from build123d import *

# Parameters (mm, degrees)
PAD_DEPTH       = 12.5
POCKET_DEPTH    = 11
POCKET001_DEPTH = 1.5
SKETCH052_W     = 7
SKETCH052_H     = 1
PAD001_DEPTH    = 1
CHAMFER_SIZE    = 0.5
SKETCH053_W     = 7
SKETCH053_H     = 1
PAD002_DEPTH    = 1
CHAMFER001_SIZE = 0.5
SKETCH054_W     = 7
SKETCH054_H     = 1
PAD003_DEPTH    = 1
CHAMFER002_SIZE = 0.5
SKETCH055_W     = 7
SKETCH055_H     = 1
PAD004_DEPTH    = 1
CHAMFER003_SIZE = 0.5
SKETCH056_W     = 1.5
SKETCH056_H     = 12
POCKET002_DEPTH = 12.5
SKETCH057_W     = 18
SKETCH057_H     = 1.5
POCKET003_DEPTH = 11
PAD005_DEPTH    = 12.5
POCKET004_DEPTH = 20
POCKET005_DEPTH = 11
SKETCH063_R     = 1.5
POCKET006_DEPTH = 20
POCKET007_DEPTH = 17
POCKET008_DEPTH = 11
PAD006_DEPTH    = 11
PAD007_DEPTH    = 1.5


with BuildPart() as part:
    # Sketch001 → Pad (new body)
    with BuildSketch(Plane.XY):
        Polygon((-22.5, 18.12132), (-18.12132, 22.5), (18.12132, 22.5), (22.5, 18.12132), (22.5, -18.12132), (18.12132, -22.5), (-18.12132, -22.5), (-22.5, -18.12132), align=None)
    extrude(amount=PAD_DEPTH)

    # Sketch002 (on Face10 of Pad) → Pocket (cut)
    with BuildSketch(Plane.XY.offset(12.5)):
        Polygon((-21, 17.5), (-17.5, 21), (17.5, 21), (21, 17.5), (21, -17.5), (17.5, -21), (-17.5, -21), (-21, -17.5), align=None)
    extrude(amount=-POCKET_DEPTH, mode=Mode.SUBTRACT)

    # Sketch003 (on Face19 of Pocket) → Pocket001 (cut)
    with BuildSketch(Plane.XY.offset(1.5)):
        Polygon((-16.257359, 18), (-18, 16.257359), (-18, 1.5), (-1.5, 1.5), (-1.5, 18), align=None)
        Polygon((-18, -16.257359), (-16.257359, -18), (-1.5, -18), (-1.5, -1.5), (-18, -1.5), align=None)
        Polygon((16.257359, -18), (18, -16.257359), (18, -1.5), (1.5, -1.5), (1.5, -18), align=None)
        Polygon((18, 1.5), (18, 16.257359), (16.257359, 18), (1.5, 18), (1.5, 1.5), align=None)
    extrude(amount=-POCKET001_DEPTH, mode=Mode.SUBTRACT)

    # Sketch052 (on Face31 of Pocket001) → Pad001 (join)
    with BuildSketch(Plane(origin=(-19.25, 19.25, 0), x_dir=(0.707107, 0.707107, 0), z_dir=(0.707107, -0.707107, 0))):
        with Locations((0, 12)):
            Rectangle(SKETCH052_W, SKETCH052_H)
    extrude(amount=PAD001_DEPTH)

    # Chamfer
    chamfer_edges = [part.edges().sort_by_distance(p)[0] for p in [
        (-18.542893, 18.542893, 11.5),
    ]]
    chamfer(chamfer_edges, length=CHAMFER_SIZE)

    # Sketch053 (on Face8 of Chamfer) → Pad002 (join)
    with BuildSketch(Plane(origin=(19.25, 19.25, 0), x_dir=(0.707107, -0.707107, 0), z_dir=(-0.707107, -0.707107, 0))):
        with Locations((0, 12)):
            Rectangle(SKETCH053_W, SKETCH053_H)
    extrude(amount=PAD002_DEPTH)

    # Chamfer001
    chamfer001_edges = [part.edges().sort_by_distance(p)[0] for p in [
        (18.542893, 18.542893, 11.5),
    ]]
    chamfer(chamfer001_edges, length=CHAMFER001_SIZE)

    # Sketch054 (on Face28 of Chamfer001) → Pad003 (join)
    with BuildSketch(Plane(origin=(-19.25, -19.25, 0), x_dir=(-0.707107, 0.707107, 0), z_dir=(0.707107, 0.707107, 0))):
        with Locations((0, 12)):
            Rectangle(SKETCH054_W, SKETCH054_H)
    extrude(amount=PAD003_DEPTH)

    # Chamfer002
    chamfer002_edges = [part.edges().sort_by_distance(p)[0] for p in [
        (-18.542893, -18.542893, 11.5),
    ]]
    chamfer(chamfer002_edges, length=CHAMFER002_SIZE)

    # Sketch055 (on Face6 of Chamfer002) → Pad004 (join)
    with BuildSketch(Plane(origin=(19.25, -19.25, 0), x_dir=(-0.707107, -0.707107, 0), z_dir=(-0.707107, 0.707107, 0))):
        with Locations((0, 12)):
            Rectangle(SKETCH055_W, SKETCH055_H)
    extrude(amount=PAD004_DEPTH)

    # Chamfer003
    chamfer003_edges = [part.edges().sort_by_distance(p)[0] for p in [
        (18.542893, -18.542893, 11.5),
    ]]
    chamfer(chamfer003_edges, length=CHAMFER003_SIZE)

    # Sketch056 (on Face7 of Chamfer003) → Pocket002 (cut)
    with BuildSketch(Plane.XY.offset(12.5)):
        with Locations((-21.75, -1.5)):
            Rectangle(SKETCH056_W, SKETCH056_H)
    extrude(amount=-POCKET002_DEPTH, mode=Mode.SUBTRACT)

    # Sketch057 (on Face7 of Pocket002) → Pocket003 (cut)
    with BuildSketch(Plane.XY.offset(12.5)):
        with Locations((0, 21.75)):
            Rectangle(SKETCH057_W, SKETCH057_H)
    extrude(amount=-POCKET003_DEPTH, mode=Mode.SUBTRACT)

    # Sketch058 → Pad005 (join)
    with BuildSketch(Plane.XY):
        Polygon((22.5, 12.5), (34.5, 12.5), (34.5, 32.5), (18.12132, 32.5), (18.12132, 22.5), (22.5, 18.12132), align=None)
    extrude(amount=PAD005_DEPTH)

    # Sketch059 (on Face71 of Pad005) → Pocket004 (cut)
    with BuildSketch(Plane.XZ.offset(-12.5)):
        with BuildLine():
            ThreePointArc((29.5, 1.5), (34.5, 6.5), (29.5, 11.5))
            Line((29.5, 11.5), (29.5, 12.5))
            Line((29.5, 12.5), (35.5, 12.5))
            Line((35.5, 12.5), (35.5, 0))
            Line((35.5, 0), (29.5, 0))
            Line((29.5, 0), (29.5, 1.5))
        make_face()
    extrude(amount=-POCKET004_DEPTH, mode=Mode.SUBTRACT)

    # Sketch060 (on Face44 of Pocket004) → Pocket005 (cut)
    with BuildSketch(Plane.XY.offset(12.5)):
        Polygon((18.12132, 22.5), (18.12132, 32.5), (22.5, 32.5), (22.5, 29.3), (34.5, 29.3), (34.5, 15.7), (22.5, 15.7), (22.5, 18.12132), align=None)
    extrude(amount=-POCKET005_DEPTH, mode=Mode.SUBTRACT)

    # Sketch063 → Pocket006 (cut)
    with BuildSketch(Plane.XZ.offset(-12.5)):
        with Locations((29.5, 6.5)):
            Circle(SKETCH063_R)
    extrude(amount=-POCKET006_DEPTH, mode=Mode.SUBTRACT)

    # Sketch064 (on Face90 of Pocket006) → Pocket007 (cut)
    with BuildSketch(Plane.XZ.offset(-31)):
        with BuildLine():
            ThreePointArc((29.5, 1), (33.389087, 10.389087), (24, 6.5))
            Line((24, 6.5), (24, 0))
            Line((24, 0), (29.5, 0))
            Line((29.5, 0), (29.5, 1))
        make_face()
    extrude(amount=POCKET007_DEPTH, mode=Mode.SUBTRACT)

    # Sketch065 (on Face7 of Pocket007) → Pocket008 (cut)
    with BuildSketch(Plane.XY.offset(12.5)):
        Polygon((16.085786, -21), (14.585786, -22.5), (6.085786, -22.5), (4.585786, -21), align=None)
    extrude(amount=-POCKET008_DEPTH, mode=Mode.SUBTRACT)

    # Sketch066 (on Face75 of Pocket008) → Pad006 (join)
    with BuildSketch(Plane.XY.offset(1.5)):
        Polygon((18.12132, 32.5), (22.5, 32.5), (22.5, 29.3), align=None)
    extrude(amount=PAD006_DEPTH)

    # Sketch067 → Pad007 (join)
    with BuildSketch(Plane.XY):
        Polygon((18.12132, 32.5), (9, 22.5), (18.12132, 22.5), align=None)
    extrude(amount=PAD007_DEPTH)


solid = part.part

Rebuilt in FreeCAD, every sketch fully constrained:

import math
import FreeCAD as App
import Part
import Sketcher
from FreeCAD import Vector
Q = App.Units.Quantity


def edges_at(feature, points):
    """Names of the edges that pass closest to the given points."""
    edges = feature.Shape.Edges
    near = lambda p: min(range(len(edges)), key=lambda i: edges[i].distToShape(Part.Vertex(*p))[0])
    return sorted({f"Edge{near(p) + 1}" for p in points})


def add_polygon(sketch, points):
    """Adds a closed chain of lines whose ends are joined by coincident constraints."""
    first, n = sketch.GeometryCount, len(points)
    for a, b in zip(points, points[1:] + points[:1]):
        sketch.addGeometry(Part.LineSegment(App.Vector(*a, 0), App.Vector(*b, 0)), False)
    for i in range(n):
        sketch.addConstraint(Sketcher.Constraint("Coincident", first + i, 2, first + (i + 1) % n, 1))

doc = App.newDocument("Part")
body = doc.addObject("PartDesign::Body", "Body")

# Sketch on XY plane
sketch1 = body.newObject("Sketcher::SketchObject", "Sketch")
sketch1.AttachmentSupport = (doc.getObject("XY_Plane"), [""])
sketch1.MapMode = "FlatFace"
add_polygon(sketch1, [(-18.12132, 22.5), (-22.5, 18.12132), (-22.5, -18.12132), (-18.12132, -22.5), (18.12132, -22.5), (22.5, -18.12132), (22.5, 18.12132), (18.12132, 22.5)])  # lines 0-7
sketch1.addConstraint(Sketcher.Constraint("Vertical", 1))
sketch1.addConstraint(Sketcher.Constraint("Horizontal", 3))
sketch1.addConstraint(Sketcher.Constraint("Vertical", 5))
sketch1.addConstraint(Sketcher.Constraint("Horizontal", 7))
sketch1.addConstraint(Sketcher.Constraint("Symmetric", 0, 2, 4, 2, -1, 1))
sketch1.addConstraint(Sketcher.Constraint("Symmetric", 2, 2, 6, 2, -1, 1))
sketch1.addConstraint(Sketcher.Constraint("Perpendicular", 0, 2))
sketch1.addConstraint(Sketcher.Constraint("Perpendicular", 2, 4))
sketch1.addConstraint(Sketcher.Constraint("Perpendicular", 4, 6))
sketch1.addConstraint(Sketcher.Constraint("Horizontal", 1, 2, 4, 2))
sketch1.addConstraint(Sketcher.Constraint("Vertical", 3, 2, 6, 2))
sketch1.addConstraint(Sketcher.Constraint("Equal", 7, 1))
sketch1.addConstraint(Sketcher.Constraint("DistanceX", 1, 2, 4, 2, 45.0))
sketch1.addConstraint(Sketcher.Constraint("DistanceX", 3, 1, 3, 2, 36.24264))
pad1 = body.newObject("PartDesign::Pad", "Pad")
pad1.Profile = sketch1
pad1.Length = 12.5

# Sketch on XY plane
sketch2 = body.newObject("Sketcher::SketchObject", "Sketch001")
sketch2.AttachmentSupport = (doc.getObject("XY_Plane"), [""])
sketch2.MapMode = "FlatFace"
sketch2.AttachmentOffset = App.Placement(Vector(0, 0, 12.5), App.Rotation())
add_polygon(sketch2, [(-17.5, 21), (-21, 17.5), (-21, -17.5), (-17.5, -21), (17.5, -21), (21, -17.5), (21, 17.5), (17.5, 21)])  # lines 0-7
sketch2.addConstraint(Sketcher.Constraint("Vertical", 1))
sketch2.addConstraint(Sketcher.Constraint("Horizontal", 3))
sketch2.addConstraint(Sketcher.Constraint("Vertical", 5))
sketch2.addConstraint(Sketcher.Constraint("Horizontal", 7))
sketch2.addConstraint(Sketcher.Constraint("Symmetric", 0, 2, 4, 2, -1, 1))
sketch2.addConstraint(Sketcher.Constraint("Symmetric", 2, 2, 6, 2, -1, 1))
sketch2.addConstraint(Sketcher.Constraint("Perpendicular", 0, 2))
sketch2.addConstraint(Sketcher.Constraint("Perpendicular", 2, 4))
sketch2.addConstraint(Sketcher.Constraint("Perpendicular", 4, 6))
sketch2.addConstraint(Sketcher.Constraint("Horizontal", 1, 2, 4, 2))
sketch2.addConstraint(Sketcher.Constraint("Vertical", 3, 2, 6, 2))
sketch2.addConstraint(Sketcher.Constraint("Equal", 7, 1))
sketch2.addConstraint(Sketcher.Constraint("DistanceX", 3, 1, 3, 2, 35.0))
sketch2.addConstraint(Sketcher.Constraint("DistanceX", 0, 2, -1, 1, 21.0))
pocket1 = body.newObject("PartDesign::Pocket", "Pocket")
pocket1.Profile = sketch2
pocket1.Length = 11

# Sketch on XY plane
sketch3 = body.newObject("Sketcher::SketchObject", "Sketch002")
sketch3.AttachmentSupport = (doc.getObject("XY_Plane"), [""])
sketch3.MapMode = "FlatFace"
sketch3.AttachmentOffset = App.Placement(Vector(0, 0, 1.5), App.Rotation())
add_polygon(sketch3, [(-16.257359, 18), (-18, 16.257359), (-18, 1.5), (-1.5, 1.5), (-1.5, 18)])  # lines 0-4
add_polygon(sketch3, [(-18, -16.257359), (-16.257359, -18), (-1.5, -18), (-1.5, -1.5), (-18, -1.5)])  # lines 5-9
add_polygon(sketch3, [(16.257359, -18), (18, -16.257359), (18, -1.5), (1.5, -1.5), (1.5, -18)])  # lines 10-14
add_polygon(sketch3, [(18, 1.5), (18, 16.257359), (16.257359, 18), (1.5, 18), (1.5, 1.5)])  # lines 15-19
sketch3.addConstraint(Sketcher.Constraint("Vertical", 1))
sketch3.addConstraint(Sketcher.Constraint("Horizontal", 2))
sketch3.addConstraint(Sketcher.Constraint("Vertical", 3))
sketch3.addConstraint(Sketcher.Constraint("Horizontal", 4))
sketch3.addConstraint(Sketcher.Constraint("Horizontal", 6))
sketch3.addConstraint(Sketcher.Constraint("Vertical", 7))
sketch3.addConstraint(Sketcher.Constraint("Horizontal", 8))
sketch3.addConstraint(Sketcher.Constraint("Vertical", 9))
sketch3.addConstraint(Sketcher.Constraint("Vertical", 11))
sketch3.addConstraint(Sketcher.Constraint("Horizontal", 12))
sketch3.addConstraint(Sketcher.Constraint("Vertical", 13))
sketch3.addConstraint(Sketcher.Constraint("Horizontal", 14))
sketch3.addConstraint(Sketcher.Constraint("Vertical", 15))
sketch3.addConstraint(Sketcher.Constraint("Horizontal", 17))
sketch3.addConstraint(Sketcher.Constraint("Vertical", 18))
sketch3.addConstraint(Sketcher.Constraint("Horizontal", 19))
sketch3.addConstraint(Sketcher.Constraint("Symmetric", 0, 2, 10, 2, -1, 1))
sketch3.addConstraint(Sketcher.Constraint("Symmetric", 2, 2, 12, 2, -1, 1))
sketch3.addConstraint(Sketcher.Constraint("Symmetric", 4, 2, 14, 2, -1, 1))
sketch3.addConstraint(Sketcher.Constraint("Symmetric", 9, 2, 15, 2, -1, 1))
sketch3.addConstraint(Sketcher.Constraint("Symmetric", 5, 2, 16, 2, -1, 1))
sketch3.addConstraint(Sketcher.Constraint("Symmetric", 7, 2, 18, 2, -1, 1))
sketch3.addConstraint(Sketcher.Constraint("Symmetric", 9, 2, 10, 2, -2))
sketch3.addConstraint(Sketcher.Constraint("Symmetric", 7, 2, 12, 2, -2))
sketch3.addConstraint(Sketcher.Constraint("Symmetric", 5, 2, 14, 2, -2))
sketch3.addConstraint(Sketcher.Constraint("Perpendicular", 0, 5))
sketch3.addConstraint(Sketcher.Constraint("Equal", 17, 1))
sketch3.addConstraint(Sketcher.Constraint("DistanceX", 2, 1, 2, 2, 16.5))
sketch3.addConstraint(Sketcher.Constraint("DistanceX", 0, 2, -1, 1, 18.0))
sketch3.addConstraint(Sketcher.Constraint("DistanceY", -1, 1, 3, 2, 18.0))
sketch3.addConstraint(Sketcher.Constraint("DistanceX", 4, 2, 4, 1, 14.757359))
pocket2 = body.newObject("PartDesign::Pocket", "Pocket001")
pocket2.Profile = sketch3
pocket2.Length = 1.5

# Sketch on an angled plane
sketch4 = body.newObject("Sketcher::SketchObject", "Sketch003")
sketch4.Placement = App.Placement(Vector(-19.25, 19.25, 0), App.Rotation(Vector(0.707106781, 0.707106781, 0), Vector(0, 0, 0.999999999), Vector(0.707106781, -0.707106781, 0), "ZXY"))
add_polygon(sketch4, [(-3.5, 12.5), (-3.5, 11.5), (3.5, 11.5), (3.5, 12.5)])  # lines 0-3
sketch4.addConstraint(Sketcher.Constraint("Vertical", 0))
sketch4.addConstraint(Sketcher.Constraint("Horizontal", 1))
sketch4.addConstraint(Sketcher.Constraint("Vertical", 2))
sketch4.addConstraint(Sketcher.Constraint("Horizontal", 3))
sketch4.addConstraint(Sketcher.Constraint("DistanceX", 1, 1, 1, 2, 7.0))
sketch4.addConstraint(Sketcher.Constraint("DistanceY", 0, 2, 0, 1, 1.0))
sketch4.addConstraint(Sketcher.Constraint("DistanceX", 0, 2, -1, 1, 3.5))
sketch4.addConstraint(Sketcher.Constraint("DistanceY", -1, 1, 0, 2, 11.5))
pad2 = body.newObject("PartDesign::Pad", "Pad001")
pad2.Profile = sketch4
pad2.Length = 1
doc.recompute()

chamfer = body.newObject("PartDesign::Chamfer", "Chamfer")
chamfer.Base = (pad2, edges_at(pad2, [(-18.543, 18.543, 11.5)]))
chamfer.Size = 0.5

# Sketch on an angled plane
sketch5 = body.newObject("Sketcher::SketchObject", "Sketch004")
sketch5.Placement = App.Placement(Vector(19.25, 19.25, 0), App.Rotation(Vector(0.707106781, -0.707106781, 0), Vector(0, 0, 0.999999999), Vector(-0.707106781, -0.707106781, 0), "ZXY"))
add_polygon(sketch5, [(-3.5, 12.5), (-3.5, 11.5), (3.5, 11.5), (3.5, 12.5)])  # lines 0-3
sketch5.addConstraint(Sketcher.Constraint("Vertical", 0))
sketch5.addConstraint(Sketcher.Constraint("Horizontal", 1))
sketch5.addConstraint(Sketcher.Constraint("Vertical", 2))
sketch5.addConstraint(Sketcher.Constraint("Horizontal", 3))
sketch5.addConstraint(Sketcher.Constraint("DistanceX", 1, 1, 1, 2, 7.0))
sketch5.addConstraint(Sketcher.Constraint("DistanceY", 0, 2, 0, 1, 1.0))
sketch5.addConstraint(Sketcher.Constraint("DistanceX", 0, 2, -1, 1, 3.5))
sketch5.addConstraint(Sketcher.Constraint("DistanceY", -1, 1, 0, 2, 11.5))
pad3 = body.newObject("PartDesign::Pad", "Pad002")
pad3.Profile = sketch5
pad3.Length = 1
doc.recompute()

chamfer2 = body.newObject("PartDesign::Chamfer", "Chamfer001")
chamfer2.Base = (pad3, edges_at(pad3, [(18.543, 18.543, 11.5)]))
chamfer2.Size = 0.5

# Sketch on an angled plane
sketch6 = body.newObject("Sketcher::SketchObject", "Sketch005")
sketch6.Placement = App.Placement(Vector(-19.25, -19.25, 0), App.Rotation(Vector(-0.707106781, 0.707106781, 0), Vector(0, 0, 0.999999999), Vector(0.707106781, 0.707106781, 0), "ZXY"))
add_polygon(sketch6, [(-3.5, 12.5), (-3.5, 11.5), (3.5, 11.5), (3.5, 12.5)])  # lines 0-3
sketch6.addConstraint(Sketcher.Constraint("Vertical", 0))
sketch6.addConstraint(Sketcher.Constraint("Horizontal", 1))
sketch6.addConstraint(Sketcher.Constraint("Vertical", 2))
sketch6.addConstraint(Sketcher.Constraint("Horizontal", 3))
sketch6.addConstraint(Sketcher.Constraint("DistanceX", 1, 1, 1, 2, 7.0))
sketch6.addConstraint(Sketcher.Constraint("DistanceY", 0, 2, 0, 1, 1.0))
sketch6.addConstraint(Sketcher.Constraint("DistanceX", 0, 2, -1, 1, 3.5))
sketch6.addConstraint(Sketcher.Constraint("DistanceY", -1, 1, 0, 2, 11.5))
pad4 = body.newObject("PartDesign::Pad", "Pad003")
pad4.Profile = sketch6
pad4.Length = 1
doc.recompute()

chamfer3 = body.newObject("PartDesign::Chamfer", "Chamfer002")
chamfer3.Base = (pad4, edges_at(pad4, [(-18.543, -18.543, 11.5)]))
chamfer3.Size = 0.5

# Sketch on an angled plane
sketch7 = body.newObject("Sketcher::SketchObject", "Sketch006")
sketch7.Placement = App.Placement(Vector(19.25, -19.25, 0), App.Rotation(Vector(-0.707106781, -0.707106781, 0), Vector(0, 0, 0.999999999), Vector(-0.707106781, 0.707106781, 0), "ZXY"))
add_polygon(sketch7, [(-3.5, 12.5), (-3.5, 11.5), (3.5, 11.5), (3.5, 12.5)])  # lines 0-3
sketch7.addConstraint(Sketcher.Constraint("Vertical", 0))
sketch7.addConstraint(Sketcher.Constraint("Horizontal", 1))
sketch7.addConstraint(Sketcher.Constraint("Vertical", 2))
sketch7.addConstraint(Sketcher.Constraint("Horizontal", 3))
sketch7.addConstraint(Sketcher.Constraint("DistanceX", 1, 1, 1, 2, 7.0))
sketch7.addConstraint(Sketcher.Constraint("DistanceY", 0, 2, 0, 1, 1.0))
sketch7.addConstraint(Sketcher.Constraint("DistanceX", 0, 2, -1, 1, 3.5))
sketch7.addConstraint(Sketcher.Constraint("DistanceY", -1, 1, 0, 2, 11.5))
pad5 = body.newObject("PartDesign::Pad", "Pad004")
pad5.Profile = sketch7
pad5.Length = 1
doc.recompute()

chamfer4 = body.newObject("PartDesign::Chamfer", "Chamfer003")
chamfer4.Base = (pad5, edges_at(pad5, [(18.543, -18.543, 11.5)]))
chamfer4.Size = 0.5

# Sketch on XY plane
sketch8 = body.newObject("Sketcher::SketchObject", "Sketch007")
sketch8.AttachmentSupport = (doc.getObject("XY_Plane"), [""])
sketch8.MapMode = "FlatFace"
sketch8.AttachmentOffset = App.Placement(Vector(0, 0, 12.5), App.Rotation())
add_polygon(sketch8, [(-22.5, 4.5), (-22.5, -7.5), (-21, -7.5), (-21, 4.5)])  # lines 0-3
sketch8.addConstraint(Sketcher.Constraint("Vertical", 0))
sketch8.addConstraint(Sketcher.Constraint("Horizontal", 1))
sketch8.addConstraint(Sketcher.Constraint("Vertical", 2))
sketch8.addConstraint(Sketcher.Constraint("Horizontal", 3))
sketch8.addConstraint(Sketcher.Constraint("DistanceY", 0, 2, 0, 1, 12.0))
sketch8.addConstraint(Sketcher.Constraint("DistanceX", 1, 1, 1, 2, 1.5))
sketch8.addConstraint(Sketcher.Constraint("DistanceX", 1, 2, -1, 1, 21.0))
sketch8.addConstraint(Sketcher.Constraint("DistanceY", 0, 2, -1, 1, 7.5))
pocket3 = body.newObject("PartDesign::Pocket", "Pocket002")
pocket3.Profile = sketch8
pocket3.Length = 12.5

# Sketch on XY plane
sketch9 = body.newObject("Sketcher::SketchObject", "Sketch008")
sketch9.AttachmentSupport = (doc.getObject("XY_Plane"), [""])
sketch9.MapMode = "FlatFace"
sketch9.AttachmentOffset = App.Placement(Vector(0, 0, 12.5), App.Rotation())
add_polygon(sketch9, [(-9, 22.5), (-9, 21), (9, 21), (9, 22.5)])  # lines 0-3
sketch9.addConstraint(Sketcher.Constraint("Vertical", 0))
sketch9.addConstraint(Sketcher.Constraint("Horizontal", 1))
sketch9.addConstraint(Sketcher.Constraint("Vertical", 2))
sketch9.addConstraint(Sketcher.Constraint("Horizontal", 3))
sketch9.addConstraint(Sketcher.Constraint("DistanceX", 1, 1, 1, 2, 18.0))
sketch9.addConstraint(Sketcher.Constraint("DistanceY", 0, 2, 0, 1, 1.5))
sketch9.addConstraint(Sketcher.Constraint("DistanceX", 0, 2, -1, 1, 9.0))
sketch9.addConstraint(Sketcher.Constraint("DistanceY", -1, 1, 0, 2, 21.0))
pocket4 = body.newObject("PartDesign::Pocket", "Pocket003")
pocket4.Profile = sketch9
pocket4.Length = 11

# Sketch on XY plane
sketch10 = body.newObject("Sketcher::SketchObject", "Sketch009")
sketch10.AttachmentSupport = (doc.getObject("XY_Plane"), [""])
sketch10.MapMode = "FlatFace"
add_polygon(sketch10, [(22.5, 12.5), (34.5, 12.5), (34.5, 32.5), (18.12132, 32.5), (18.12132, 22.5), (22.5, 18.12132)])  # lines 0-5
sketch10.addConstraint(Sketcher.Constraint("Horizontal", 0))
sketch10.addConstraint(Sketcher.Constraint("Vertical", 1))
sketch10.addConstraint(Sketcher.Constraint("Horizontal", 2))
sketch10.addConstraint(Sketcher.Constraint("Vertical", 3))
sketch10.addConstraint(Sketcher.Constraint("Vertical", 5))
sketch10.addConstraint(Sketcher.Constraint("DistanceX", 0, 1, 0, 2, 12.0))
sketch10.addConstraint(Sketcher.Constraint("DistanceY", 1, 1, 1, 2, 20.0))
sketch10.addConstraint(Sketcher.Constraint("DistanceY", 3, 2, 3, 1, 10.0))
sketch10.addConstraint(Sketcher.Constraint("Angle", 4, Q("-45 deg")))
sketch10.addConstraint(Sketcher.Constraint("DistanceX", -1, 1, 0, 2, 34.5))
sketch10.addConstraint(Sketcher.Constraint("DistanceY", -1, 1, 0, 2, 12.5))
sketch10.addConstraint(Sketcher.Constraint("DistanceX", 2, 2, 2, 1, 16.37868))
pad6 = body.newObject("PartDesign::Pad", "Pad005")
pad6.Profile = sketch10
pad6.Length = 12.5

# Sketch on XZ plane
sketch11 = body.newObject("Sketcher::SketchObject", "Sketch010")
sketch11.AttachmentSupport = (doc.getObject("XZ_Plane"), [""])
sketch11.MapMode = "FlatFace"
sketch11.AttachmentOffset = App.Placement(Vector(0, 0, -12.5), App.Rotation())
sketch11.addGeometry(Part.ArcOfCircle(Part.Circle(Vector(29.5, 6.5, 0), Vector(0, 0, 1), 5), math.radians(-90), math.radians(90)), False)
sketch11.addGeometry(Part.LineSegment(Vector(29.5, 1.5, 0), Vector(29.5, 0, 0)), False)
sketch11.addGeometry(Part.LineSegment(Vector(29.5, 0, 0), Vector(35.5, 0, 0)), False)
sketch11.addGeometry(Part.LineSegment(Vector(35.5, 0, 0), Vector(35.5, 12.5, 0)), False)
sketch11.addGeometry(Part.LineSegment(Vector(35.5, 12.5, 0), Vector(29.5, 12.5, 0)), False)
sketch11.addGeometry(Part.LineSegment(Vector(29.5, 12.5, 0), Vector(29.5, 11.5, 0)), False)
sketch11.addConstraint(Sketcher.Constraint("Coincident", 0, 1, 1, 1))
sketch11.addConstraint(Sketcher.Constraint("Coincident", 1, 2, 2, 1))
sketch11.addConstraint(Sketcher.Constraint("Coincident", 2, 2, 3, 1))
sketch11.addConstraint(Sketcher.Constraint("Coincident", 3, 2, 4, 1))
sketch11.addConstraint(Sketcher.Constraint("Coincident", 4, 2, 5, 1))
sketch11.addConstraint(Sketcher.Constraint("Coincident", 5, 2, 0, 2))
sketch11.addConstraint(Sketcher.Constraint("Vertical", 1))
sketch11.addConstraint(Sketcher.Constraint("Horizontal", 2))
sketch11.addConstraint(Sketcher.Constraint("Vertical", 3))
sketch11.addConstraint(Sketcher.Constraint("Horizontal", 4))
sketch11.addConstraint(Sketcher.Constraint("Vertical", 5))
sketch11.addConstraint(Sketcher.Constraint("PointOnObject", 1, 2, -1))
sketch11.addConstraint(Sketcher.Constraint("Vertical", 1, 2, 4, 2))
sketch11.addConstraint(Sketcher.Constraint("Radius", 0, 5.0))
sketch11.addConstraint(Sketcher.Constraint("DistanceX", 2, 1, 2, 2, 6.0))
sketch11.addConstraint(Sketcher.Constraint("DistanceY", 5, 2, 5, 1, 1.0))
sketch11.addConstraint(Sketcher.Constraint("DistanceY", 1, 2, 1, 1, 1.5))
sketch11.addConstraint(Sketcher.Constraint("DistanceX", 0, 3, 2, 2, 6.0))
sketch11.addConstraint(Sketcher.Constraint("DistanceX", -1, 1, 0, 3, 29.5))
pocket5 = body.newObject("PartDesign::Pocket", "Pocket004")
pocket5.Profile = sketch11
pocket5.Length = 20

# Sketch on XY plane
sketch12 = body.newObject("Sketcher::SketchObject", "Sketch011")
sketch12.AttachmentSupport = (doc.getObject("XY_Plane"), [""])
sketch12.MapMode = "FlatFace"
sketch12.AttachmentOffset = App.Placement(Vector(0, 0, 12.5), App.Rotation())
add_polygon(sketch12, [(18.12132, 32.5), (18.12132, 22.5), (22.5, 18.12132), (22.5, 15.7), (34.5, 15.7), (34.5, 29.3), (22.5, 29.3), (22.5, 32.5)])  # lines 0-7
sketch12.addConstraint(Sketcher.Constraint("Vertical", 0))
sketch12.addConstraint(Sketcher.Constraint("Vertical", 2))
sketch12.addConstraint(Sketcher.Constraint("Horizontal", 3))
sketch12.addConstraint(Sketcher.Constraint("Vertical", 4))
sketch12.addConstraint(Sketcher.Constraint("Horizontal", 5))
sketch12.addConstraint(Sketcher.Constraint("Vertical", 6))
sketch12.addConstraint(Sketcher.Constraint("Horizontal", 7))
sketch12.addConstraint(Sketcher.Constraint("Vertical", 2, 2, 5, 2))
sketch12.addConstraint(Sketcher.Constraint("DistanceX", 3, 1, 3, 2, 12.0))
sketch12.addConstraint(Sketcher.Constraint("DistanceY", 0, 2, 0, 1, 10.0))
sketch12.addConstraint(Sketcher.Constraint("Angle", 1, Q("-45 deg")))
sketch12.addConstraint(Sketcher.Constraint("DistanceY", 4, 1, 4, 2, 13.6))
sketch12.addConstraint(Sketcher.Constraint("DistanceY", 6, 1, 6, 2, 3.2))
sketch12.addConstraint(Sketcher.Constraint("DistanceY", -1, 1, 0, 2, 22.5))
sketch12.addConstraint(Sketcher.Constraint("DistanceX", -1, 1, 1, 2, 22.5))
sketch12.addConstraint(Sketcher.Constraint("DistanceX", 7, 2, 7, 1, 4.37868))
pocket6 = body.newObject("PartDesign::Pocket", "Pocket005")
pocket6.Profile = sketch12
pocket6.Length = 11

# Sketch on XZ plane
sketch13 = body.newObject("Sketcher::SketchObject", "Sketch012")
sketch13.AttachmentSupport = (doc.getObject("XZ_Plane"), [""])
sketch13.MapMode = "FlatFace"
sketch13.AttachmentOffset = App.Placement(Vector(0, 0, -12.5), App.Rotation())
sketch13.addGeometry(Part.Circle(Vector(29.5, 6.5, 0), Vector(0, 0, 1), 1.5), False)
sketch13.addConstraint(Sketcher.Constraint("Diameter", 0, 3.0))
sketch13.addConstraint(Sketcher.Constraint("DistanceX", -1, 1, 0, 3, 29.5))
sketch13.addConstraint(Sketcher.Constraint("DistanceY", -1, 1, 0, 3, 6.5))
pocket7 = body.newObject("PartDesign::Pocket", "Pocket006")
pocket7.Profile = sketch13
pocket7.Length = 20

# Sketch on XZ plane
sketch14 = body.newObject("Sketcher::SketchObject", "Sketch013")
sketch14.AttachmentSupport = (doc.getObject("XZ_Plane"), [""])
sketch14.MapMode = "FlatFace"
sketch14.AttachmentOffset = App.Placement(Vector(0, 0, -31), App.Rotation())
sketch14.addGeometry(Part.ArcOfCircle(Part.Circle(Vector(29.5, 6.5, 0), Vector(0, 0, 1), 5.5), math.radians(-89.999998), math.radians(179.999998)), False)
sketch14.addGeometry(Part.LineSegment(Vector(24, 6.5, 0), Vector(24, 0, 0)), False)
sketch14.addGeometry(Part.LineSegment(Vector(24, 0, 0), Vector(29.5, 0, 0)), False)
sketch14.addGeometry(Part.LineSegment(Vector(29.5, 0, 0), Vector(29.5, 1, 0)), False)
sketch14.addConstraint(Sketcher.Constraint("Tangent", 0, 2, 1, 1))
sketch14.addConstraint(Sketcher.Constraint("Coincident", 1, 2, 2, 1))
sketch14.addConstraint(Sketcher.Constraint("Coincident", 2, 2, 3, 1))
sketch14.addConstraint(Sketcher.Constraint("Coincident", 3, 2, 0, 1))
sketch14.addConstraint(Sketcher.Constraint("Vertical", 1))
sketch14.addConstraint(Sketcher.Constraint("Horizontal", 2))
sketch14.addConstraint(Sketcher.Constraint("Vertical", 3))
sketch14.addConstraint(Sketcher.Constraint("PointOnObject", 1, 2, -1))
sketch14.addConstraint(Sketcher.Constraint("Vertical", 0, 3, 2, 2))
sketch14.addConstraint(Sketcher.Constraint("Radius", 0, 5.5))
sketch14.addConstraint(Sketcher.Constraint("DistanceY", 3, 1, 3, 2, 1.0))
sketch14.addConstraint(Sketcher.Constraint("DistanceX", -1, 1, 0, 2, 24.0))
pocket8 = body.newObject("PartDesign::Pocket", "Pocket007")
pocket8.Profile = sketch14
pocket8.Length = 17
pocket8.Reversed = True

# Sketch on XY plane
sketch15 = body.newObject("Sketcher::SketchObject", "Sketch014")
sketch15.AttachmentSupport = (doc.getObject("XY_Plane"), [""])
sketch15.MapMode = "FlatFace"
sketch15.AttachmentOffset = App.Placement(Vector(0, 0, 12.5), App.Rotation())
add_polygon(sketch15, [(14.585786, -22.5), (16.085786, -21), (4.585786, -21), (6.085786, -22.5)])  # lines 0-3
sketch15.addConstraint(Sketcher.Constraint("Horizontal", 1))
sketch15.addConstraint(Sketcher.Constraint("Horizontal", 3))
sketch15.addConstraint(Sketcher.Constraint("Perpendicular", 0, 2))
sketch15.addConstraint(Sketcher.Constraint("Equal", 0, 2))
sketch15.addConstraint(Sketcher.Constraint("DistanceX", 1, 2, 1, 1, 11.5))
sketch15.addConstraint(Sketcher.Constraint("DistanceX", 3, 1, 3, 2, 8.5))
sketch15.addConstraint(Sketcher.Constraint("DistanceY", 0, 2, -1, 1, 21.0))
sketch15.addConstraint(Sketcher.Constraint("DistanceX", -1, 1, 0, 2, 16.085786))
pocket9 = body.newObject("PartDesign::Pocket", "Pocket008")
pocket9.Profile = sketch15
pocket9.Length = 11

# Sketch on XY plane
sketch16 = body.newObject("Sketcher::SketchObject", "Sketch015")
sketch16.AttachmentSupport = (doc.getObject("XY_Plane"), [""])
sketch16.MapMode = "FlatFace"
sketch16.AttachmentOffset = App.Placement(Vector(0, 0, 1.5), App.Rotation())
add_polygon(sketch16, [(22.5, 32.5), (18.12132, 32.5), (22.5, 29.3)])  # lines 0-2
sketch16.addConstraint(Sketcher.Constraint("Horizontal", 0))
sketch16.addConstraint(Sketcher.Constraint("Vertical", 2))
sketch16.addConstraint(Sketcher.Constraint("DistanceY", 2, 1, 2, 2, 3.2))
sketch16.addConstraint(Sketcher.Constraint("DistanceY", -1, 1, 0, 2, 32.5))
sketch16.addConstraint(Sketcher.Constraint("DistanceX", -1, 1, 1, 2, 22.5))
sketch16.addConstraint(Sketcher.Constraint("DistanceX", 0, 2, 0, 1, 4.37868))
pad7 = body.newObject("PartDesign::Pad", "Pad006")
pad7.Profile = sketch16
pad7.Length = 11

# Sketch on XY plane
sketch17 = body.newObject("Sketcher::SketchObject", "Sketch016")
sketch17.AttachmentSupport = (doc.getObject("XY_Plane"), [""])
sketch17.MapMode = "FlatFace"
add_polygon(sketch17, [(18.12132, 32.5), (9, 22.5), (18.12132, 22.5)])  # lines 0-2
sketch17.addConstraint(Sketcher.Constraint("Horizontal", 1))
sketch17.addConstraint(Sketcher.Constraint("Vertical", 2))
sketch17.addConstraint(Sketcher.Constraint("DistanceY", 2, 1, 2, 2, 10.0))
sketch17.addConstraint(Sketcher.Constraint("DistanceX", -1, 1, 0, 2, 9.0))
sketch17.addConstraint(Sketcher.Constraint("DistanceY", -1, 1, 0, 2, 22.5))
sketch17.addConstraint(Sketcher.Constraint("DistanceX", 1, 1, 1, 2, 9.12132))
pad8 = body.newObject("PartDesign::Pad", "Pad007")
pad8.Profile = sketch17
pad8.Length = 1.5

doc.recompute()
